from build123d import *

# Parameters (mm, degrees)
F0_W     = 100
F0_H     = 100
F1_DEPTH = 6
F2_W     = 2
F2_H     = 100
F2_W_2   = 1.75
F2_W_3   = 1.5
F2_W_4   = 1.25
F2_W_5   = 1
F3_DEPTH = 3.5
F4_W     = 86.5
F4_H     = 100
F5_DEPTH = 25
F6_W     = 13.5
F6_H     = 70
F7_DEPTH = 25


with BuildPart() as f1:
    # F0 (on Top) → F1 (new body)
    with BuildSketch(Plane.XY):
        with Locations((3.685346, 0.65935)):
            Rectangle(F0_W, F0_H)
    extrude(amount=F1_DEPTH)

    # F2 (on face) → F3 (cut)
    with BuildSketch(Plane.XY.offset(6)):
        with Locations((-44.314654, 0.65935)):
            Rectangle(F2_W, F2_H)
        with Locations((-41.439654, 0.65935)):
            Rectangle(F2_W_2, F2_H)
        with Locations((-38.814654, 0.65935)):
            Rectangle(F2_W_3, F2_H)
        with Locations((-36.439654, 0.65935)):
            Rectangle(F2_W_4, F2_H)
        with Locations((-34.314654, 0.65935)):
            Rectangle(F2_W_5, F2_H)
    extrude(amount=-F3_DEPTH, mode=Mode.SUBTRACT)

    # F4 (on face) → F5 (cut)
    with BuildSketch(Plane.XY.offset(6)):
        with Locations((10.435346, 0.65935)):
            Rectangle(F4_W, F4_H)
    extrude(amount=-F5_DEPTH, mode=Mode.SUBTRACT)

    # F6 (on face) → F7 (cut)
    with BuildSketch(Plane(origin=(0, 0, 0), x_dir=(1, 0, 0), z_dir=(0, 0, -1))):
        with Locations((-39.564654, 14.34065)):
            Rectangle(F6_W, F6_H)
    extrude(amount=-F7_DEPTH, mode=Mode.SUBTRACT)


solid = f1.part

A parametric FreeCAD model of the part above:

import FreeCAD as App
import Part
import Sketcher
from FreeCAD import Vector


def add_polygon(sketch, points):
    """Adds a closed chain of lines whose ends are joined by coincident constraints."""
    first, n = sketch.GeometryCount, len(points)
    for a, b in zip(points, points[1:] + points[:1]):
        sketch.addGeometry(Part.LineSegment(App.Vector(*a, 0), App.Vector(*b, 0)), False)
    for i in range(n):
        sketch.addConstraint(Sketcher.Constraint("Coincident", first + i, 2, first + (i + 1) % n, 1))

doc = App.newDocument("Part")
body = doc.addObject("PartDesign::Body", "Body")

# Sketch on XY plane
sketch1 = doc.addObject("Sketcher::SketchObject", "Sketch")
body.addObject(sketch1)
sketch1.AttachmentSupport = (doc.XY_Plane, [""])
sketch1.MapMode = "FlatFace"
add_polygon(sketch1, [(-46, 51), (-46, -49), (54, -49), (54, 51)])  # lines 0-3
sketch1.addConstraint(Sketcher.Constraint("Vertical", 0))
sketch1.addConstraint(Sketcher.Constraint("Horizontal", 1))
sketch1.addConstraint(Sketcher.Constraint("Vertical", 2))
sketch1.addConstraint(Sketcher.Constraint("Horizontal", 3))
sketch1.addConstraint(Sketcher.Constraint("Equal", 3, 0))
sketch1.addConstraint(Sketcher.Constraint("DistanceX", 1, 1, 1, 2, 100.0))
sketch1.addConstraint(Sketcher.Constraint("DistanceY", 0, 2, -1, 1, 49.34065))
sketch1.addConstraint(Sketcher.Constraint("DistanceX", 0, 2, -1, 1, 46.314654))
pad1 = doc.addObject("PartDesign::Pad", "Pad")
body.addObject(pad1)
pad1.Profile = sketch1
pad1.Length = 6

# Sketch on XY plane
sketch2 = doc.addObject("Sketcher::SketchObject", "Sketch001")
body.addObject(sketch2)
sketch2.AttachmentSupport = (doc.XY_Plane, [""])
sketch2.MapMode = "FlatFace"
sketch2.AttachmentOffset = App.Placement(Vector(0, 0, 6), App.Rotation())
add_polygon(sketch2, [(-45.3, 50.7), (-45.3, -49.3), (-43.3, -49.3), (-43.3, 50.7)])  # lines 0-3
add_polygon(sketch2, [(-42.3, 50.7), (-42.3, -49.3), (-40.6, -49.3), (-40.6, 50.7)])  # lines 4-7
add_polygon(sketch2, [(-39.6, 50.7), (-39.6, -49.3), (-38.1, -49.3), (-38.1, 50.7)])  # lines 8-11
add_polygon(sketch2, [(-37.1, 50.7), (-37.1, -49.3), (-35.8, -49.3), (-35.8, 50.7)])  # lines 12-15
add_polygon(sketch2, [(-34.8, 50.7), (-34.8, -49.3), (-33.8, -49.3), (-33.8, 50.7)])  # lines 16-19
sketch2.addConstraint(Sketcher.Constraint("Vertical", 0))
sketch2.addConstraint(Sketcher.Constraint("Horizontal", 1))
sketch2.addConstraint(Sketcher.Constraint("Vertical", 2))
sketch2.addConstraint(Sketcher.Constraint("Horizontal", 3))
sketch2.addConstraint(Sketcher.Constraint("Vertical", 4))
sketch2.addConstraint(Sketcher.Constraint("Horizontal", 5))
sketch2.addConstraint(Sketcher.Constraint("Vertical", 6))
sketch2.addConstraint(Sketcher.Constraint("Horizontal", 7))
sketch2.addConstraint(Sketcher.Constraint("Vertical", 8))
sketch2.addConstraint(Sketcher.Constraint("Horizontal", 9))
sketch2.addConstraint(Sketcher.Constraint("Vertical", 10))
sketch2.addConstraint(Sketcher.Constraint("Horizontal", 11))
sketch2.addConstraint(Sketcher.Constraint("Vertical", 12))
sketch2.addConstraint(Sketcher.Constraint("Horizontal", 13))
sketch2.addConstraint(Sketcher.Constraint("Vertical", 14))
sketch2.addConstraint(Sketcher.Constraint("Horizontal", 15))
sketch2.addConstraint(Sketcher.Constraint("Vertical", 16))
sketch2.addConstraint(Sketcher.Constraint("Horizontal", 17))
sketch2.addConstraint(Sketcher.Constraint("Vertical", 18))
sketch2.addConstraint(Sketcher.Constraint("Horizontal", 19))
sketch2.addConstraint(Sketcher.Constraint("Horizontal", 1, 2, 4, 2))
sketch2.addConstraint(Sketcher.Constraint("Horizontal", 3, 2, 6, 2))
sketch2.addConstraint(Sketcher.Constraint("Horizontal", 5, 2, 8, 2))
sketch2.addConstraint(Sketcher.Constraint("Horizontal", 7, 2, 10, 2))
sketch2.addConstraint(Sketcher.Constraint("Horizontal", 9, 2, 12, 2))
sketch2.addConstraint(Sketcher.Constraint("Horizontal", 11, 2, 14, 2))
sketch2.addConstraint(Sketcher.Constraint("Horizontal", 13, 2, 16, 2))
sketch2.addConstraint(Sketcher.Constraint("Horizontal", 15, 2, 18, 2))
sketch2.addConstraint(Sketcher.Constraint("DistanceX", 1, 1, 1, 2, 2.0))
sketch2.addConstraint(Sketcher.Constraint("DistanceX", 17, 1, 17, 2, 1.0))
sketch2.addConstraint(Sketcher.Constraint("DistanceY", 0, 2, 0, 1, 100.0))
sketch2.addConstraint(Sketcher.Constraint("DistanceX", 9, 1, 9, 2, 1.5))
sketch2.addConstraint(Sketcher.Constraint("DistanceX", 1, 2, 4, 2, 1.0))
sketch2.addConstraint(Sketcher.Constraint("DistanceX", 5, 2, 8, 2, 1.0))
sketch2.addConstraint(Sketcher.Constraint("DistanceX", 9, 2, 12, 2, 1.0))
sketch2.addConstraint(Sketcher.Constraint("DistanceX", 13, 2, 16, 2, 1.0))
sketch2.addConstraint(Sketcher.Constraint("DistanceX", 5, 1, 5, 2, 1.75))
sketch2.addConstraint(Sketcher.Constraint("DistanceX", 13, 1, 13, 2, 1.25))
sketch2.addConstraint(Sketcher.Constraint("DistanceY", 0, 2, -1, 1, 49.34065))
sketch2.addConstraint(Sketcher.Constraint("DistanceX", 0, 2, -1, 1, 45.314654))
pocket1 = doc.addObject("PartDesign::Pocket", "Pocket")
body.addObject(pocket1)
pocket1.Profile = sketch2
pocket1.Length = 3.5

# Sketch on XY plane
sketch3 = doc.addObject("Sketcher::SketchObject", "Sketch002")
body.addObject(sketch3)
sketch3.AttachmentSupport = (doc.XY_Plane, [""])
sketch3.MapMode = "FlatFace"
sketch3.AttachmentOffset = App.Placement(Vector(0, 0, 6), App.Rotation())
add_polygon(sketch3, [(-33, 51), (-33, -49), (54, -49), (54, 51)])  # lines 0-3
sketch3.addConstraint(Sketcher.Constraint("Vertical", 0))
sketch3.addConstraint(Sketcher.Constraint("Horizontal", 1))
sketch3.addConstraint(Sketcher.Constraint("Vertical", 2))
sketch3.addConstraint(Sketcher.Constraint("Horizontal", 3))
sketch3.addConstraint(Sketcher.Constraint("DistanceY", 0, 2, 0, 1, 100.0))
sketch3.addConstraint(Sketcher.Constraint("DistanceX", 1, 1, 1, 2, 86.5))
sketch3.addConstraint(Sketcher.Constraint("DistanceY", 0, 2, -1, 1, 49.34065))
sketch3.addConstraint(Sketcher.Constraint("DistanceX", 0, 2, -1, 1, 32.814654))
pocket2 = doc.addObject("PartDesign::Pocket", "Pocket001")
body.addObject(pocket2)
pocket2.Profile = sketch3
pocket2.Length = 25

# Sketch on XY plane
sketch4 = doc.addObject("Sketcher::SketchObject", "Sketch003")
body.addObject(sketch4)
sketch4.AttachmentSupport = (doc.XY_Plane, [""])
sketch4.MapMode = "FlatFace"
add_polygon(sketch4, [(-46, -49), (-46, 21), (-33, 21), (-33, -49)])  # lines 0-3
sketch4.addConstraint(Sketcher.Constraint("Vertical", 0))
sketch4.addConstraint(Sketcher.Constraint("Horizontal", 1))
sketch4.addConstraint(Sketcher.Constraint("Vertical", 2))
sketch4.addConstraint(Sketcher.Constraint("Horizontal", 3))
sketch4.addConstraint(Sketcher.Constraint("DistanceY", 0, 1, 0, 2, 70.0))
sketch4.addConstraint(Sketcher.Constraint("DistanceX", 1, 1, 1, 2, 13.5))
sketch4.addConstraint(Sketcher.Constraint("DistanceY", -1, 1, 0, 2, 20.65935))
sketch4.addConstraint(Sketcher.Constraint("DistanceX", 0, 2, -1, 1, 46.314654))
pocket3 = doc.addObject("PartDesign::Pocket", "Pocket002")
body.addObject(pocket3)
pocket3.Profile = sketch4
pocket3.Length = 25
pocket3.Reversed = True

doc.recompute()
